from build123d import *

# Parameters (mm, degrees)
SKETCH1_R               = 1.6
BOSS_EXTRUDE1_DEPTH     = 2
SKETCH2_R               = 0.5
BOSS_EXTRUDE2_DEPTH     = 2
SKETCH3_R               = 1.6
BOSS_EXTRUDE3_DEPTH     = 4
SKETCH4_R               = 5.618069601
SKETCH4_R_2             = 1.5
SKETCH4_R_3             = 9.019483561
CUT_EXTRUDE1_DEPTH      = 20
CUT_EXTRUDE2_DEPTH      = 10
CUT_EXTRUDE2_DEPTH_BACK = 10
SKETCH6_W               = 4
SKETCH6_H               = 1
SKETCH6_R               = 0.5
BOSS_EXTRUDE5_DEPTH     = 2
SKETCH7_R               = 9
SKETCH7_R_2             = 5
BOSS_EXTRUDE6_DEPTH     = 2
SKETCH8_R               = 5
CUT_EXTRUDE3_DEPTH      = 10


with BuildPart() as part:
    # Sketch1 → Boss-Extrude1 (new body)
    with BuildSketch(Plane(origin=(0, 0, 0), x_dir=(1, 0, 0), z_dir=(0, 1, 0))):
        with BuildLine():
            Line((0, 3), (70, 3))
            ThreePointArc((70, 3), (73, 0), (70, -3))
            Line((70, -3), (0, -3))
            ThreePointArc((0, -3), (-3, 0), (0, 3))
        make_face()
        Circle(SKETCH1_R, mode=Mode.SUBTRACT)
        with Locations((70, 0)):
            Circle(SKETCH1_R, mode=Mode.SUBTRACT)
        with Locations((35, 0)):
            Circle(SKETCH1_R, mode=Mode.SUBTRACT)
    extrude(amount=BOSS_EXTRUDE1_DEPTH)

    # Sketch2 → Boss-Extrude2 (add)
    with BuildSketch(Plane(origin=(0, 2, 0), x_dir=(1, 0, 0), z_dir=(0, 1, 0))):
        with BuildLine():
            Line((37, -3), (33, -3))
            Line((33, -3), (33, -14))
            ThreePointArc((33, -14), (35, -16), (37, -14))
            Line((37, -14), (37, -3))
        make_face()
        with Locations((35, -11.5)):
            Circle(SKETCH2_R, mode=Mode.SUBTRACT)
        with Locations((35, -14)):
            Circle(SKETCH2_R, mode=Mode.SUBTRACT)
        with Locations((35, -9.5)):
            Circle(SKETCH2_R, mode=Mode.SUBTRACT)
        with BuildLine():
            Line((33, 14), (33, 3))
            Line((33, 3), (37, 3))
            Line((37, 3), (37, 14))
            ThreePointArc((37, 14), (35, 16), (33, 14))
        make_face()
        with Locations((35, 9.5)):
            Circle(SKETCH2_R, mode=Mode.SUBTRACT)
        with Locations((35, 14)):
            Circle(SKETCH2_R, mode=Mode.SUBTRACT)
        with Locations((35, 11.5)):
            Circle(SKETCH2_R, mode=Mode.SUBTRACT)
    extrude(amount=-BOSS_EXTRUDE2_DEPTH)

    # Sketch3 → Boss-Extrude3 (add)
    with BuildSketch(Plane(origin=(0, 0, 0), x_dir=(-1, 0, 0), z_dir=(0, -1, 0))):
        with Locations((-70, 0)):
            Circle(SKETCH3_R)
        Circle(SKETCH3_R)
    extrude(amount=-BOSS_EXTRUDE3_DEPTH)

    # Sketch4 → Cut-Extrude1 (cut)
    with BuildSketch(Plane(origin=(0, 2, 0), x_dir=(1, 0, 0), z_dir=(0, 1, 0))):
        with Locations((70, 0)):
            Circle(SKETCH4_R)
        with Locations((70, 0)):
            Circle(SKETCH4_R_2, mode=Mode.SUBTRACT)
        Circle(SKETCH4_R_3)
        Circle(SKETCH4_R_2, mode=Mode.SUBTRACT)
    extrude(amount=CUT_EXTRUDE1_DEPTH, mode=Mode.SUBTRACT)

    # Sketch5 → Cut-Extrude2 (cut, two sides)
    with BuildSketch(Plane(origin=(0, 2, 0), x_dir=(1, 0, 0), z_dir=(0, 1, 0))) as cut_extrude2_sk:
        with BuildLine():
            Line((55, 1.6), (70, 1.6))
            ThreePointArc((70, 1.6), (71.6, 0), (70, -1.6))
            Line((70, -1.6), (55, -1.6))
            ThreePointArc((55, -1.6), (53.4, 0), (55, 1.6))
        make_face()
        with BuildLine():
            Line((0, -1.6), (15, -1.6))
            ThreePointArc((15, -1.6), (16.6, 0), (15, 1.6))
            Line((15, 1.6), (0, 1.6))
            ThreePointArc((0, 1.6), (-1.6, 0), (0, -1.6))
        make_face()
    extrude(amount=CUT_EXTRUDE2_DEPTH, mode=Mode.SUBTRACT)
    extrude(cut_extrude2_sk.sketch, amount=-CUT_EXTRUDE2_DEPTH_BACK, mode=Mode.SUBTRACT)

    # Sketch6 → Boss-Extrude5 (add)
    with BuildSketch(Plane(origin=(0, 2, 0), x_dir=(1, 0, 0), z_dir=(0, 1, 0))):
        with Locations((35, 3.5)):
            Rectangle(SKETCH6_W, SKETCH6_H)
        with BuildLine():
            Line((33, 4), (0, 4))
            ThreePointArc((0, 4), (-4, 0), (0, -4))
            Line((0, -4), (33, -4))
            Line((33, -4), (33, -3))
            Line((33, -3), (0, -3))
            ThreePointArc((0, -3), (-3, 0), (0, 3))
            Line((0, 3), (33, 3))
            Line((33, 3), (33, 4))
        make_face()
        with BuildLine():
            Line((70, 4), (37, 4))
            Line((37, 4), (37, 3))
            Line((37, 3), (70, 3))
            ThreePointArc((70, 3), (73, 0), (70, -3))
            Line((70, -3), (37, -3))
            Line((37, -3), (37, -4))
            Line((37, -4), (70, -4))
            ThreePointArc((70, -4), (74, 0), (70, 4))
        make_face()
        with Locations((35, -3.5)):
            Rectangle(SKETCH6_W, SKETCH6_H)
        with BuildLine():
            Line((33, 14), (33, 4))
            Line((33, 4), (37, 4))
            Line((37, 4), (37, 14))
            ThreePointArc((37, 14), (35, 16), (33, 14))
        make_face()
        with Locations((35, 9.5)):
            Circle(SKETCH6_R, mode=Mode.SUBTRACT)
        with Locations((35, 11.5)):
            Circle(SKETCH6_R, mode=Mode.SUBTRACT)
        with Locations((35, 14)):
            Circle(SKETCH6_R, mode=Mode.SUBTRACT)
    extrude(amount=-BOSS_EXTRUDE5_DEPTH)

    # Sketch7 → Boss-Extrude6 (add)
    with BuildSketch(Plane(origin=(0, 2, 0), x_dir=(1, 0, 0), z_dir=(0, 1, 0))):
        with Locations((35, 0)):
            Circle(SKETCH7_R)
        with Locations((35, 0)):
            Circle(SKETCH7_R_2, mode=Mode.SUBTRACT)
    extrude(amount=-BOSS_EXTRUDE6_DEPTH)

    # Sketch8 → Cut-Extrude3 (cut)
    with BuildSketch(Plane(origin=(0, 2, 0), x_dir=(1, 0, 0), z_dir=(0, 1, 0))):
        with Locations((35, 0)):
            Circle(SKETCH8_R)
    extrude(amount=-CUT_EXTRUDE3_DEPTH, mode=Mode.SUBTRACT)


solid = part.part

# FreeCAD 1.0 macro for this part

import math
import FreeCAD as App
import Part
import Sketcher

V = App.Vector
Q = App.Units.Quantity

doc = App.newDocument("Part")
params = doc.addObject("Spreadsheet::Sheet", "Params")
for row, (alias, value) in enumerate([
    ("sketch1_radius", "3 mm"),
    ("sketch1_diameter", "3.2 mm"),
    ("sketch1_width", "70 mm"),
    ("pad1_length", "2 mm"),
    ("sketch2_diameter", "1 mm"),
    ("sketch2_radius", "2 mm"),
    ("sketch2_height", "11 mm"),
    ("pad2_length", "2 mm"),
    ("sketch3_diameter", "3.2 mm"),
    ("pad3_length", "4 mm"),
    ("sketch4_diameter", "3 mm"),
    ("pocket1_length", "20 mm"),
    ("sketch5_radius", "1.6 mm"),
    ("sketch5_width", "15 mm"),
    ("sketch6_diameter", "1 mm"),
    ("sketch6_radius", "4 mm"),
    ("sketch6_radius2", "2 mm"),
    ("sketch6_radius3", "3 mm"),
    ("sketch6_width", "70 mm"),
    ("pad4_length", "2 mm"),
    ("sketch7_diameter", "18 mm"),
    ("sketch7_diameter2", "10 mm"),
    ("pad5_length", "2 mm"),
    ("sketch8_diameter", "10 mm"),
    ("pocket3_length", "10 mm"),
], start=1):
    params.set(f"A{row}", alias)
    params.set(f"B{row}", "=" + value)
    params.setAlias(f"B{row}", alias)

body = doc.addObject("PartDesign::Body", "Body")

# Sketch on XZ plane
sketch1 = body.newObject("Sketcher::SketchObject", "Sketch")
sketch1.AttachmentSupport = (doc.getObject("XZ_Plane"), [""])
sketch1.MapMode = "FlatFace"
sketch1.addGeometry(Part.LineSegment(V(70, -3, 0), V(0, -3, 0)), False)
sketch1.addGeometry(Part.ArcOfCircle(Part.Circle(V(0, 0, 0), V(0, 0, 1), 3), math.radians(90), math.radians(270)), False)
sketch1.addGeometry(Part.LineSegment(V(0, 3, 0), V(70, 3, 0)), False)
sketch1.addGeometry(Part.ArcOfCircle(Part.Circle(V(70, 0, 0), V(0, 0, 1), 3), math.radians(-90), math.radians(90)), False)
sketch1.addGeometry(Part.Circle(V(70, 0, 0), V(0, 0, 1), 1.6), False)
sketch1.addGeometry(Part.Circle(V(35, 0, 0), V(0, 0, 1), 1.6), False)
sketch1.addGeometry(Part.Circle(V(0, 0, 0), V(0, 0, 1), 1.6), False)
sketch1.addConstraint(Sketcher.Constraint("Tangent", 0, 2, 1, 2))
sketch1.addConstraint(Sketcher.Constraint("Tangent", 1, 1, 2, 1))
sketch1.addConstraint(Sketcher.Constraint("Tangent", 2, 2, 3, 2))
sketch1.addConstraint(Sketcher.Constraint("Tangent", 3, 1, 0, 1))
sketch1.addConstraint(Sketcher.Constraint("Horizontal", 0))
sketch1.addConstraint(Sketcher.Constraint("Horizontal", 2))
sketch1.addConstraint(Sketcher.Constraint("Coincident", 1, 3, -1, 1))
sketch1.addConstraint(Sketcher.Constraint("Coincident", 6, 3, -1, 1))
sketch1.addConstraint(Sketcher.Constraint("Coincident", 4, 3, 3, 3))
sketch1.addConstraint(Sketcher.Constraint("Equal", 4, 5))
sketch1.addConstraint(Sketcher.Constraint("Equal", 5, 6))
sketch1.addConstraint(Sketcher.Constraint("PointOnObject", 5, 3, -1))
sketch1.addConstraint(Sketcher.Constraint("Radius", 1, Q("3 mm")))
sketch1.addConstraint(Sketcher.Constraint("Diameter", 4, Q("3.2 mm")))
sketch1.addConstraint(Sketcher.Constraint("DistanceX", 0, 2, 0, 1, Q("70 mm")))
sketch1.addConstraint(Sketcher.Constraint("DistanceX", -1, 1, 5, 3, Q("35 mm")))
sketch1.setExpression("Constraints[12]", "Params.sketch1_radius")
sketch1.setExpression("Constraints[13]", "Params.sketch1_diameter")
sketch1.setExpression("Constraints[14]", "Params.sketch1_width")
pad1 = body.newObject("PartDesign::Pad", "Pad")
pad1.Profile = sketch1
pad1.setExpression("Length", "Params.pad1_length")
pad1.Reversed = True

# Sketch on XZ plane
sketch2 = body.newObject("Sketcher::SketchObject", "Sketch001")
sketch2.AttachmentSupport = (doc.getObject("XZ_Plane"), [""])
sketch2.MapMode = "FlatFace"
sketch2.AttachmentOffset = App.Placement(V(0, 0, -2), App.Rotation())
sketch2.addGeometry(Part.LineSegment(V(37, 3, 0), V(33, 3, 0)), False)
sketch2.addGeometry(Part.LineSegment(V(33, 3, 0), V(33, 14, 0)), False)
sketch2.addGeometry(Part.ArcOfCircle(Part.Circle(V(35, 14, 0), V(0, 0, 1), 2), math.radians(0), math.radians(180)), False)
sketch2.addGeometry(Part.LineSegment(V(37, 14, 0), V(37, 3, 0)), False)
sketch2.addGeometry(Part.Circle(V(35, 14, 0), V(0, 0, 1), 0.5), False)
sketch2.addGeometry(Part.Circle(V(35, 11.5, 0), V(0, 0, 1), 0.5), False)
sketch2.addGeometry(Part.Circle(V(35, 9.5, 0), V(0, 0, 1), 0.5), False)
sketch2.addGeometry(Part.LineSegment(V(33, -14, 0), V(33, -3, 0)), False)
sketch2.addGeometry(Part.LineSegment(V(33, -3, 0), V(37, -3, 0)), False)
sketch2.addGeometry(Part.LineSegment(V(37, -3, 0), V(37, -14, 0)), False)
sketch2.addGeometry(Part.ArcOfCircle(Part.Circle(V(35, -14, 0), V(0, 0, 1), 2), math.radians(180), math.radians(360)), False)
sketch2.addGeometry(Part.Circle(V(35, -9.5, 0), V(0, 0, 1), 0.5), False)
sketch2.addGeometry(Part.Circle(V(35, -11.5, 0), V(0, 0, 1), 0.5), False)
sketch2.addGeometry(Part.Circle(V(35, -14, 0), V(0, 0, 1), 0.5), False)
sketch2.addConstraint(Sketcher.Constraint("Coincident", 0, 2, 1, 1))
sketch2.addConstraint(Sketcher.Constraint("Tangent", 1, 2, 2, 2))
sketch2.addConstraint(Sketcher.Constraint("Tangent", 2, 1, 3, 1))
sketch2.addConstraint(Sketcher.Constraint("Coincident", 3, 2, 0, 1))
sketch2.addConstraint(Sketcher.Constraint("Coincident", 7, 2, 8, 1))
sketch2.addConstraint(Sketcher.Constraint("Coincident", 8, 2, 9, 1))
sketch2.addConstraint(Sketcher.Constraint("Tangent", 9, 2, 10, 2))
sketch2.addConstraint(Sketcher.Constraint("Tangent", 10, 1, 7, 1))
sketch2.addConstraint(Sketcher.Constraint("Horizontal", 0))
sketch2.addConstraint(Sketcher.Constraint("Vertical", 1))
sketch2.addConstraint(Sketcher.Constraint("Vertical", 3))
sketch2.addConstraint(Sketcher.Constraint("Vertical", 7))
sketch2.addConstraint(Sketcher.Constraint("Horizontal", 8))
sketch2.addConstraint(Sketcher.Constraint("Vertical", 9))
sketch2.addConstraint(Sketcher.Constraint("Coincident", 4, 3, 2, 3))
sketch2.addConstraint(Sketcher.Constraint("Coincident", 13, 3, 10, 3))
sketch2.addConstraint(Sketcher.Constraint("Equal", 4, 5))
sketch2.addConstraint(Sketcher.Constraint("Equal", 5, 6))
sketch2.addConstraint(Sketcher.Constraint("Equal", 2, 10))
sketch2.addConstraint(Sketcher.Constraint("Equal", 6, 11))
sketch2.addConstraint(Sketcher.Constraint("Equal", 11, 12))
sketch2.addConstraint(Sketcher.Constraint("Equal", 12, 13))
sketch2.addConstraint(Sketcher.Constraint("Symmetric", 2, 3, 10, 3, -1))
sketch2.addConstraint(Sketcher.Constraint("Symmetric", 6, 3, 11, 3, -1))
sketch2.addConstraint(Sketcher.Constraint("Symmetric", 5, 3, 12, 3, -1))
sketch2.addConstraint(Sketcher.Constraint("Vertical", 4, 3, 5, 3))
sketch2.addConstraint(Sketcher.Constraint("Vertical", 5, 3, 6, 3))
sketch2.addConstraint(Sketcher.Constraint("Equal", 3, 7))
sketch2.addConstraint(Sketcher.Constraint("Diameter", 4, Q("1 mm")))
sketch2.addConstraint(Sketcher.Constraint("Radius", 2, Q("2 mm")))
sketch2.addConstraint(Sketcher.Constraint("DistanceY", 1, 1, 1, 2, Q("11 mm")))
sketch2.addConstraint(Sketcher.Constraint("DistanceX", -1, 1, 2, 3, Q("35 mm")))
sketch2.addConstraint(Sketcher.Constraint("DistanceY", -1, 1, 2, 3, Q("14 mm")))
sketch2.addConstraint(Sketcher.Constraint("DistanceY", 6, 3, 5, 3, Q("2 mm")))
sketch2.addConstraint(Sketcher.Constraint("DistanceY", 11, 3, 6, 3, Q("19 mm")))
sketch2.setExpression("Constraints[28]", "Params.sketch2_diameter")
sketch2.setExpression("Constraints[29]", "Params.sketch2_radius")
sketch2.setExpression("Constraints[30]", "Params.sketch2_height")
pad2 = body.newObject("PartDesign::Pad", "Pad001")
pad2.Profile = sketch2
pad2.setExpression("Length", "Params.pad2_length")

# Sketch on XZ plane
sketch3 = body.newObject("Sketcher::SketchObject", "Sketch002")
sketch3.AttachmentSupport = (doc.getObject("XZ_Plane"), [""])
sketch3.MapMode = "FlatFace"
sketch3.addGeometry(Part.Circle(V(70, 0, 0), V(0, 0, 1), 1.6), False)
sketch3.addGeometry(Part.Circle(V(0, 0, 0), V(0, 0, 1), 1.6), False)
sketch3.addConstraint(Sketcher.Constraint("Coincident", 1, 3, -1, 1))
sketch3.addConstraint(Sketcher.Constraint("Equal", 0, 1))
sketch3.addConstraint(Sketcher.Constraint("PointOnObject", 0, 3, -1))
sketch3.addConstraint(Sketcher.Constraint("Diameter", 0, Q("3.2 mm")))
sketch3.addConstraint(Sketcher.Constraint("DistanceX", -1, 1, 0, 3, Q("70 mm")))
sketch3.setExpression("Constraints[3]", "Params.sketch3_diameter")
pad3 = body.newObject("PartDesign::Pad", "Pad002")
pad3.Profile = sketch3
pad3.setExpression("Length", "Params.pad3_length")
pad3.Reversed = True

# Sketch on XZ plane
sketch4 = body.newObject("Sketcher::SketchObject", "Sketch003")
sketch4.AttachmentSupport = (doc.getObject("XZ_Plane"), [""])
sketch4.MapMode = "FlatFace"
sketch4.AttachmentOffset = App.Placement(V(0, 0, -2), App.Rotation())
sketch4.addGeometry(Part.Circle(V(70, 0, 0), V(0, 0, 1), 5.61807), False)
sketch4.addGeometry(Part.Circle(V(70, 0, 0), V(0, 0, 1), 1.5), False)
sketch4.addGeometry(Part.Circle(V(0, 0, 0), V(0, 0, 1), 9.019484), False)
sketch4.addGeometry(Part.Circle(V(0, 0, 0), V(0, 0, 1), 1.5), False)
sketch4.addConstraint(Sketcher.Constraint("Coincident", 2, 3, -1, 1))
sketch4.addConstraint(Sketcher.Constraint("Coincident", 3, 3, -1, 1))
sketch4.addConstraint(Sketcher.Constraint("Coincident", 1, 3, 0, 3))
sketch4.addConstraint(Sketcher.Constraint("Equal", 1, 3))
sketch4.addConstraint(Sketcher.Constraint("PointOnObject", 0, 3, -1))
sketch4.addConstraint(Sketcher.Constraint("Diameter", 1, Q("3 mm")))
sketch4.addConstraint(Sketcher.Constraint("DistanceX", -1, 1, 0, 3, Q("70 mm")))
sketch4.addConstraint(Sketcher.Constraint("Diameter", 0, Q("11.236139 mm")))
sketch4.addConstraint(Sketcher.Constraint("Diameter", 2, Q("18.038967 mm")))
sketch4.setExpression("Constraints[5]", "Params.sketch4_diameter")
pocket1 = body.newObject("PartDesign::Pocket", "Pocket")
pocket1.Profile = sketch4
pocket1.setExpression("Length", "Params.pocket1_length")

# Sketch on XZ plane
sketch5 = body.newObject("Sketcher::SketchObject", "Sketch004")
sketch5.AttachmentSupport = (doc.getObject("XZ_Plane"), [""])
sketch5.MapMode = "FlatFace"
sketch5.AttachmentOffset = App.Placement(V(0, 0, -2), App.Rotation())
sketch5.addGeometry(Part.LineSegment(V(70, -1.6, 0), V(55, -1.6, 0)), False)
sketch5.addGeometry(Part.ArcOfCircle(Part.Circle(V(55, 0, 0), V(0, 0, 1), 1.6), math.radians(90), math.radians(270)), False)
sketch5.addGeometry(Part.LineSegment(V(55, 1.6, 0), V(70, 1.6, 0)), False)
sketch5.addGeometry(Part.ArcOfCircle(Part.Circle(V(70, 0, 0), V(0, 0, 1), 1.6), math.radians(-90), math.radians(90)), False)
sketch5.addGeometry(Part.LineSegment(V(0, 1.6, 0), V(15, 1.6, 0)), False)
sketch5.addGeometry(Part.ArcOfCircle(Part.Circle(V(15, 0, 0), V(0, 0, 1), 1.6), math.radians(-90), math.radians(90)), False)
sketch5.addGeometry(Part.LineSegment(V(15, -1.6, 0), V(0, -1.6, 0)), False)
sketch5.addGeometry(Part.ArcOfCircle(Part.Circle(V(0, 0, 0), V(0, 0, 1), 1.6), math.radians(90), math.radians(270)), False)
sketch5.addConstraint(Sketcher.Constraint("Tangent", 0, 2, 1, 2))
sketch5.addConstraint(Sketcher.Constraint("Tangent", 1, 1, 2, 1))
sketch5.addConstraint(Sketcher.Constraint("Tangent", 2, 2, 3, 2))
sketch5.addConstraint(Sketcher.Constraint("Tangent", 3, 1, 0, 1))
sketch5.addConstraint(Sketcher.Constraint("Tangent", 4, 2, 5, 2))
sketch5.addConstraint(Sketcher.Constraint("Tangent", 5, 1, 6, 1))
sketch5.addConstraint(Sketcher.Constraint("Tangent", 6, 2, 7, 2))
sketch5.addConstraint(Sketcher.Constraint("Tangent", 7, 1, 4, 1))
sketch5.addConstraint(Sketcher.Constraint("Horizontal", 0))
sketch5.addConstraint(Sketcher.Constraint("Horizontal", 2))
sketch5.addConstraint(Sketcher.Constraint("Horizontal", 4))
sketch5.addConstraint(Sketcher.Constraint("Horizontal", 6))
sketch5.addConstraint(Sketcher.Constraint("Coincident", 7, 3, -1, 1))
sketch5.addConstraint(Sketcher.Constraint("Equal", 3, 5))
sketch5.addConstraint(Sketcher.Constraint("PointOnObject", 1, 3, -1))
sketch5.addConstraint(Sketcher.Constraint("Equal", 2, 4))
sketch5.addConstraint(Sketcher.Constraint("Radius", 1, Q("1.6 mm")))
sketch5.addConstraint(Sketcher.Constraint("DistanceX", 0, 2, 0, 1, Q("15 mm")))
sketch5.addConstraint(Sketcher.Constraint("DistanceX", -1, 1, 1, 3, Q("55 mm")))
sketch5.setExpression("Constraints[16]", "Params.sketch5_radius")
sketch5.setExpression("Constraints[17]", "Params.sketch5_width")
pocket2 = body.newObject("PartDesign::Pocket", "Pocket001")
pocket2.Profile = sketch5
pocket2.Type = "ThroughAll"
pocket2.Midplane = True

# Sketch on XZ plane
sketch6 = body.newObject("Sketcher::SketchObject", "Sketch005")
sketch6.AttachmentSupport = (doc.getObject("XZ_Plane"), [""])
sketch6.MapMode = "FlatFace"
sketch6.AttachmentOffset = App.Placement(V(0, 0, -2), App.Rotation())
sketch6.addGeometry(Part.ArcOfCircle(Part.Circle(V(0, 0, 0), V(0, 0, 1), 4), math.radians(90), math.radians(270)), False)
sketch6.addGeometry(Part.LineSegment(V(0, 4, 0), V(70, 4, 0)), False)
sketch6.addGeometry(Part.ArcOfCircle(Part.Circle(V(70, 0, 0), V(0, 0, 1), 4), math.radians(-90), math.radians(90)), False)
sketch6.addGeometry(Part.LineSegment(V(70, -4, 0), V(37, -4, 0)), False)
sketch6.addGeometry(Part.LineSegment(V(37, -4, 0), V(37, -14, 0)), False)
sketch6.addGeometry(Part.ArcOfCircle(Part.Circle(V(35, -14, 0), V(0, 0, 1), 2), math.radians(180), math.radians(360)), False)
sketch6.addGeometry(Part.LineSegment(V(33, -14, 0), V(33, -4, 0)), False)
sketch6.addGeometry(Part.LineSegment(V(33, -4, 0), V(0, -4, 0)), False)
sketch6.addGeometry(Part.ArcOfCircle(Part.Circle(V(0, 0, 0), V(0, 0, 1), 3), math.radians(90), math.radians(270)), False)
sketch6.addGeometry(Part.LineSegment(V(0, -3, 0), V(70, -3, 0)), False)
sketch6.addGeometry(Part.ArcOfCircle(Part.Circle(V(70, 0, 0), V(0, 0, 1), 3), math.radians(-90), math.radians(90)), False)
sketch6.addGeometry(Part.LineSegment(V(70, 3, 0), V(0, 3, 0)), False)
sketch6.addGeometry(Part.Circle(V(35, -9.5, 0), V(0, 0, 1), 0.5), False)
sketch6.addGeometry(Part.Circle(V(35, -11.5, 0), V(0, 0, 1), 0.5), False)
sketch6.addGeometry(Part.Circle(V(35, -14, 0), V(0, 0, 1), 0.5), False)
sketch6.addConstraint(Sketcher.Constraint("Tangent", 0, 1, 1, 1))
sketch6.addConstraint(Sketcher.Constraint("Tangent", 1, 2, 2, 2))
sketch6.addConstraint(Sketcher.Constraint("Tangent", 2, 1, 3, 1))
sketch6.addConstraint(Sketcher.Constraint("Coincident", 3, 2, 4, 1))
sketch6.addConstraint(Sketcher.Constraint("Tangent", 4, 2, 5, 2))
sketch6.addConstraint(Sketcher.Constraint("Tangent", 5, 1, 6, 1))
sketch6.addConstraint(Sketcher.Constraint("Coincident", 6, 2, 7, 1))
sketch6.addConstraint(Sketcher.Constraint("Tangent", 7, 2, 0, 2))
sketch6.addConstraint(Sketcher.Constraint("Tangent", 8, 2, 9, 1))
sketch6.addConstraint(Sketcher.Constraint("Tangent", 9, 2, 10, 1))
sketch6.addConstraint(Sketcher.Constraint("Tangent", 10, 2, 11, 1))
sketch6.addConstraint(Sketcher.Constraint("Tangent", 11, 2, 8, 1))
sketch6.addConstraint(Sketcher.Constraint("Horizontal", 1))
sketch6.addConstraint(Sketcher.Constraint("Horizontal", 3))
sketch6.addConstraint(Sketcher.Constraint("Vertical", 4))
sketch6.addConstraint(Sketcher.Constraint("Vertical", 6))
sketch6.addConstraint(Sketcher.Constraint("Horizontal", 7))
sketch6.addConstraint(Sketcher.Constraint("Horizontal", 9))
sketch6.addConstraint(Sketcher.Constraint("Horizontal", 11))
sketch6.addConstraint(Sketcher.Constraint("Coincident", 0, 3, -1, 1))
sketch6.addConstraint(Sketcher.Constraint("Coincident", 8, 3, -1, 1))
sketch6.addConstraint(Sketcher.Constraint("Coincident", 10, 3, 2, 3))
sketch6.addConstraint(Sketcher.Constraint("Coincident", 14, 3, 5, 3))
sketch6.addConstraint(Sketcher.Constraint("Equal", 12, 13))
sketch6.addConstraint(Sketcher.Constraint("Equal", 13, 14))
sketch6.addConstraint(Sketcher.Constraint("Vertical", 5, 3, 12, 3))
sketch6.addConstraint(Sketcher.Constraint("Vertical", 12, 3, 13, 3))
sketch6.addConstraint(Sketcher.Constraint("Equal", 3, 7))
sketch6.addConstraint(Sketcher.Constraint("Diameter", 12, Q("1 mm")))
sketch6.addConstraint(Sketcher.Constraint("Radius", 0, Q("4 mm")))
sketch6.addConstraint(Sketcher.Constraint("Radius", 5, Q("2 mm")))
sketch6.addConstraint(Sketcher.Constraint("Radius", 8, Q("3 mm")))
sketch6.addConstraint(Sketcher.Constraint("DistanceX", 1, 1, 1, 2, Q("70 mm")))
sketch6.addConstraint(Sketcher.Constraint("DistanceY", 4, 2, 4, 1, Q("10 mm")))
sketch6.addConstraint(Sketcher.Constraint("DistanceY", 13, 3, 12, 3, Q("2 mm")))
sketch6.addConstraint(Sketcher.Constraint("DistanceY", 12, 3, -1, 1, Q("9.5 mm")))
sketch6.setExpression("Constraints[28]", "Params.sketch6_diameter")
sketch6.setExpression("Constraints[29]", "Params.sketch6_radius")
sketch6.setExpression("Constraints[30]", "Params.sketch6_radius2")
sketch6.setExpression("Constraints[31]", "Params.sketch6_radius3")
sketch6.setExpression("Constraints[32]", "Params.sketch6_width")
pad4 = body.newObject("PartDesign::Pad", "Pad003")
pad4.Profile = sketch6
pad4.setExpression("Length", "Params.pad4_length")

# Sketch on XZ plane
sketch7 = body.newObject("Sketcher::SketchObject", "Sketch006")
sketch7.AttachmentSupport = (doc.getObject("XZ_Plane"), [""])
sketch7.MapMode = "FlatFace"
sketch7.AttachmentOffset = App.Placement(V(0, 0, -2), App.Rotation())
sketch7.addGeometry(Part.Circle(V(35, 0, 0), V(0, 0, 1), 9), False)
sketch7.addGeometry(Part.Circle(V(35, 0, 0), V(0, 0, 1), 5), False)
sketch7.addConstraint(Sketcher.Constraint("Coincident", 1, 3, 0, 3))
sketch7.addConstraint(Sketcher.Constraint("PointOnObject", 0, 3, -1))
sketch7.addConstraint(Sketcher.Constraint("Diameter", 0, Q("18 mm")))
sketch7.addConstraint(Sketcher.Constraint("Diameter", 1, Q("10 mm")))
sketch7.addConstraint(Sketcher.Constraint("DistanceX", -1, 1, 0, 3, Q("35 mm")))
sketch7.setExpression("Constraints[2]", "Params.sketch7_diameter")
sketch7.setExpression("Constraints[3]", "Params.sketch7_diameter2")
pad5 = body.newObject("PartDesign::Pad", "Pad004")
pad5.Profile = sketch7
pad5.setExpression("Length", "Params.pad5_length")

# Sketch on XZ plane
sketch8 = body.newObject("Sketcher::SketchObject", "Sketch007")
sketch8.AttachmentSupport = (doc.getObject("XZ_Plane"), [""])
sketch8.MapMode = "FlatFace"
sketch8.AttachmentOffset = App.Placement(V(0, 0, -2), App.Rotation())
sketch8.addGeometry(Part.Circle(V(35, 0, 0), V(0, 0, 1), 5), False)
sketch8.addConstraint(Sketcher.Constraint("PointOnObject", 0, 3, -1))
sketch8.addConstraint(Sketcher.Constraint("Diameter", 0, Q("10 mm")))
sketch8.addConstraint(Sketcher.Constraint("DistanceX", -1, 1, 0, 3, Q("35 mm")))
sketch8.setExpression("Constraints[1]", "Params.sketch8_diameter")
pocket3 = body.newObject("PartDesign::Pocket", "Pocket002")
pocket3.Profile = sketch8
pocket3.setExpression("Length", "Params.pocket3_length")
pocket3.Reversed = True

doc.recompute()
